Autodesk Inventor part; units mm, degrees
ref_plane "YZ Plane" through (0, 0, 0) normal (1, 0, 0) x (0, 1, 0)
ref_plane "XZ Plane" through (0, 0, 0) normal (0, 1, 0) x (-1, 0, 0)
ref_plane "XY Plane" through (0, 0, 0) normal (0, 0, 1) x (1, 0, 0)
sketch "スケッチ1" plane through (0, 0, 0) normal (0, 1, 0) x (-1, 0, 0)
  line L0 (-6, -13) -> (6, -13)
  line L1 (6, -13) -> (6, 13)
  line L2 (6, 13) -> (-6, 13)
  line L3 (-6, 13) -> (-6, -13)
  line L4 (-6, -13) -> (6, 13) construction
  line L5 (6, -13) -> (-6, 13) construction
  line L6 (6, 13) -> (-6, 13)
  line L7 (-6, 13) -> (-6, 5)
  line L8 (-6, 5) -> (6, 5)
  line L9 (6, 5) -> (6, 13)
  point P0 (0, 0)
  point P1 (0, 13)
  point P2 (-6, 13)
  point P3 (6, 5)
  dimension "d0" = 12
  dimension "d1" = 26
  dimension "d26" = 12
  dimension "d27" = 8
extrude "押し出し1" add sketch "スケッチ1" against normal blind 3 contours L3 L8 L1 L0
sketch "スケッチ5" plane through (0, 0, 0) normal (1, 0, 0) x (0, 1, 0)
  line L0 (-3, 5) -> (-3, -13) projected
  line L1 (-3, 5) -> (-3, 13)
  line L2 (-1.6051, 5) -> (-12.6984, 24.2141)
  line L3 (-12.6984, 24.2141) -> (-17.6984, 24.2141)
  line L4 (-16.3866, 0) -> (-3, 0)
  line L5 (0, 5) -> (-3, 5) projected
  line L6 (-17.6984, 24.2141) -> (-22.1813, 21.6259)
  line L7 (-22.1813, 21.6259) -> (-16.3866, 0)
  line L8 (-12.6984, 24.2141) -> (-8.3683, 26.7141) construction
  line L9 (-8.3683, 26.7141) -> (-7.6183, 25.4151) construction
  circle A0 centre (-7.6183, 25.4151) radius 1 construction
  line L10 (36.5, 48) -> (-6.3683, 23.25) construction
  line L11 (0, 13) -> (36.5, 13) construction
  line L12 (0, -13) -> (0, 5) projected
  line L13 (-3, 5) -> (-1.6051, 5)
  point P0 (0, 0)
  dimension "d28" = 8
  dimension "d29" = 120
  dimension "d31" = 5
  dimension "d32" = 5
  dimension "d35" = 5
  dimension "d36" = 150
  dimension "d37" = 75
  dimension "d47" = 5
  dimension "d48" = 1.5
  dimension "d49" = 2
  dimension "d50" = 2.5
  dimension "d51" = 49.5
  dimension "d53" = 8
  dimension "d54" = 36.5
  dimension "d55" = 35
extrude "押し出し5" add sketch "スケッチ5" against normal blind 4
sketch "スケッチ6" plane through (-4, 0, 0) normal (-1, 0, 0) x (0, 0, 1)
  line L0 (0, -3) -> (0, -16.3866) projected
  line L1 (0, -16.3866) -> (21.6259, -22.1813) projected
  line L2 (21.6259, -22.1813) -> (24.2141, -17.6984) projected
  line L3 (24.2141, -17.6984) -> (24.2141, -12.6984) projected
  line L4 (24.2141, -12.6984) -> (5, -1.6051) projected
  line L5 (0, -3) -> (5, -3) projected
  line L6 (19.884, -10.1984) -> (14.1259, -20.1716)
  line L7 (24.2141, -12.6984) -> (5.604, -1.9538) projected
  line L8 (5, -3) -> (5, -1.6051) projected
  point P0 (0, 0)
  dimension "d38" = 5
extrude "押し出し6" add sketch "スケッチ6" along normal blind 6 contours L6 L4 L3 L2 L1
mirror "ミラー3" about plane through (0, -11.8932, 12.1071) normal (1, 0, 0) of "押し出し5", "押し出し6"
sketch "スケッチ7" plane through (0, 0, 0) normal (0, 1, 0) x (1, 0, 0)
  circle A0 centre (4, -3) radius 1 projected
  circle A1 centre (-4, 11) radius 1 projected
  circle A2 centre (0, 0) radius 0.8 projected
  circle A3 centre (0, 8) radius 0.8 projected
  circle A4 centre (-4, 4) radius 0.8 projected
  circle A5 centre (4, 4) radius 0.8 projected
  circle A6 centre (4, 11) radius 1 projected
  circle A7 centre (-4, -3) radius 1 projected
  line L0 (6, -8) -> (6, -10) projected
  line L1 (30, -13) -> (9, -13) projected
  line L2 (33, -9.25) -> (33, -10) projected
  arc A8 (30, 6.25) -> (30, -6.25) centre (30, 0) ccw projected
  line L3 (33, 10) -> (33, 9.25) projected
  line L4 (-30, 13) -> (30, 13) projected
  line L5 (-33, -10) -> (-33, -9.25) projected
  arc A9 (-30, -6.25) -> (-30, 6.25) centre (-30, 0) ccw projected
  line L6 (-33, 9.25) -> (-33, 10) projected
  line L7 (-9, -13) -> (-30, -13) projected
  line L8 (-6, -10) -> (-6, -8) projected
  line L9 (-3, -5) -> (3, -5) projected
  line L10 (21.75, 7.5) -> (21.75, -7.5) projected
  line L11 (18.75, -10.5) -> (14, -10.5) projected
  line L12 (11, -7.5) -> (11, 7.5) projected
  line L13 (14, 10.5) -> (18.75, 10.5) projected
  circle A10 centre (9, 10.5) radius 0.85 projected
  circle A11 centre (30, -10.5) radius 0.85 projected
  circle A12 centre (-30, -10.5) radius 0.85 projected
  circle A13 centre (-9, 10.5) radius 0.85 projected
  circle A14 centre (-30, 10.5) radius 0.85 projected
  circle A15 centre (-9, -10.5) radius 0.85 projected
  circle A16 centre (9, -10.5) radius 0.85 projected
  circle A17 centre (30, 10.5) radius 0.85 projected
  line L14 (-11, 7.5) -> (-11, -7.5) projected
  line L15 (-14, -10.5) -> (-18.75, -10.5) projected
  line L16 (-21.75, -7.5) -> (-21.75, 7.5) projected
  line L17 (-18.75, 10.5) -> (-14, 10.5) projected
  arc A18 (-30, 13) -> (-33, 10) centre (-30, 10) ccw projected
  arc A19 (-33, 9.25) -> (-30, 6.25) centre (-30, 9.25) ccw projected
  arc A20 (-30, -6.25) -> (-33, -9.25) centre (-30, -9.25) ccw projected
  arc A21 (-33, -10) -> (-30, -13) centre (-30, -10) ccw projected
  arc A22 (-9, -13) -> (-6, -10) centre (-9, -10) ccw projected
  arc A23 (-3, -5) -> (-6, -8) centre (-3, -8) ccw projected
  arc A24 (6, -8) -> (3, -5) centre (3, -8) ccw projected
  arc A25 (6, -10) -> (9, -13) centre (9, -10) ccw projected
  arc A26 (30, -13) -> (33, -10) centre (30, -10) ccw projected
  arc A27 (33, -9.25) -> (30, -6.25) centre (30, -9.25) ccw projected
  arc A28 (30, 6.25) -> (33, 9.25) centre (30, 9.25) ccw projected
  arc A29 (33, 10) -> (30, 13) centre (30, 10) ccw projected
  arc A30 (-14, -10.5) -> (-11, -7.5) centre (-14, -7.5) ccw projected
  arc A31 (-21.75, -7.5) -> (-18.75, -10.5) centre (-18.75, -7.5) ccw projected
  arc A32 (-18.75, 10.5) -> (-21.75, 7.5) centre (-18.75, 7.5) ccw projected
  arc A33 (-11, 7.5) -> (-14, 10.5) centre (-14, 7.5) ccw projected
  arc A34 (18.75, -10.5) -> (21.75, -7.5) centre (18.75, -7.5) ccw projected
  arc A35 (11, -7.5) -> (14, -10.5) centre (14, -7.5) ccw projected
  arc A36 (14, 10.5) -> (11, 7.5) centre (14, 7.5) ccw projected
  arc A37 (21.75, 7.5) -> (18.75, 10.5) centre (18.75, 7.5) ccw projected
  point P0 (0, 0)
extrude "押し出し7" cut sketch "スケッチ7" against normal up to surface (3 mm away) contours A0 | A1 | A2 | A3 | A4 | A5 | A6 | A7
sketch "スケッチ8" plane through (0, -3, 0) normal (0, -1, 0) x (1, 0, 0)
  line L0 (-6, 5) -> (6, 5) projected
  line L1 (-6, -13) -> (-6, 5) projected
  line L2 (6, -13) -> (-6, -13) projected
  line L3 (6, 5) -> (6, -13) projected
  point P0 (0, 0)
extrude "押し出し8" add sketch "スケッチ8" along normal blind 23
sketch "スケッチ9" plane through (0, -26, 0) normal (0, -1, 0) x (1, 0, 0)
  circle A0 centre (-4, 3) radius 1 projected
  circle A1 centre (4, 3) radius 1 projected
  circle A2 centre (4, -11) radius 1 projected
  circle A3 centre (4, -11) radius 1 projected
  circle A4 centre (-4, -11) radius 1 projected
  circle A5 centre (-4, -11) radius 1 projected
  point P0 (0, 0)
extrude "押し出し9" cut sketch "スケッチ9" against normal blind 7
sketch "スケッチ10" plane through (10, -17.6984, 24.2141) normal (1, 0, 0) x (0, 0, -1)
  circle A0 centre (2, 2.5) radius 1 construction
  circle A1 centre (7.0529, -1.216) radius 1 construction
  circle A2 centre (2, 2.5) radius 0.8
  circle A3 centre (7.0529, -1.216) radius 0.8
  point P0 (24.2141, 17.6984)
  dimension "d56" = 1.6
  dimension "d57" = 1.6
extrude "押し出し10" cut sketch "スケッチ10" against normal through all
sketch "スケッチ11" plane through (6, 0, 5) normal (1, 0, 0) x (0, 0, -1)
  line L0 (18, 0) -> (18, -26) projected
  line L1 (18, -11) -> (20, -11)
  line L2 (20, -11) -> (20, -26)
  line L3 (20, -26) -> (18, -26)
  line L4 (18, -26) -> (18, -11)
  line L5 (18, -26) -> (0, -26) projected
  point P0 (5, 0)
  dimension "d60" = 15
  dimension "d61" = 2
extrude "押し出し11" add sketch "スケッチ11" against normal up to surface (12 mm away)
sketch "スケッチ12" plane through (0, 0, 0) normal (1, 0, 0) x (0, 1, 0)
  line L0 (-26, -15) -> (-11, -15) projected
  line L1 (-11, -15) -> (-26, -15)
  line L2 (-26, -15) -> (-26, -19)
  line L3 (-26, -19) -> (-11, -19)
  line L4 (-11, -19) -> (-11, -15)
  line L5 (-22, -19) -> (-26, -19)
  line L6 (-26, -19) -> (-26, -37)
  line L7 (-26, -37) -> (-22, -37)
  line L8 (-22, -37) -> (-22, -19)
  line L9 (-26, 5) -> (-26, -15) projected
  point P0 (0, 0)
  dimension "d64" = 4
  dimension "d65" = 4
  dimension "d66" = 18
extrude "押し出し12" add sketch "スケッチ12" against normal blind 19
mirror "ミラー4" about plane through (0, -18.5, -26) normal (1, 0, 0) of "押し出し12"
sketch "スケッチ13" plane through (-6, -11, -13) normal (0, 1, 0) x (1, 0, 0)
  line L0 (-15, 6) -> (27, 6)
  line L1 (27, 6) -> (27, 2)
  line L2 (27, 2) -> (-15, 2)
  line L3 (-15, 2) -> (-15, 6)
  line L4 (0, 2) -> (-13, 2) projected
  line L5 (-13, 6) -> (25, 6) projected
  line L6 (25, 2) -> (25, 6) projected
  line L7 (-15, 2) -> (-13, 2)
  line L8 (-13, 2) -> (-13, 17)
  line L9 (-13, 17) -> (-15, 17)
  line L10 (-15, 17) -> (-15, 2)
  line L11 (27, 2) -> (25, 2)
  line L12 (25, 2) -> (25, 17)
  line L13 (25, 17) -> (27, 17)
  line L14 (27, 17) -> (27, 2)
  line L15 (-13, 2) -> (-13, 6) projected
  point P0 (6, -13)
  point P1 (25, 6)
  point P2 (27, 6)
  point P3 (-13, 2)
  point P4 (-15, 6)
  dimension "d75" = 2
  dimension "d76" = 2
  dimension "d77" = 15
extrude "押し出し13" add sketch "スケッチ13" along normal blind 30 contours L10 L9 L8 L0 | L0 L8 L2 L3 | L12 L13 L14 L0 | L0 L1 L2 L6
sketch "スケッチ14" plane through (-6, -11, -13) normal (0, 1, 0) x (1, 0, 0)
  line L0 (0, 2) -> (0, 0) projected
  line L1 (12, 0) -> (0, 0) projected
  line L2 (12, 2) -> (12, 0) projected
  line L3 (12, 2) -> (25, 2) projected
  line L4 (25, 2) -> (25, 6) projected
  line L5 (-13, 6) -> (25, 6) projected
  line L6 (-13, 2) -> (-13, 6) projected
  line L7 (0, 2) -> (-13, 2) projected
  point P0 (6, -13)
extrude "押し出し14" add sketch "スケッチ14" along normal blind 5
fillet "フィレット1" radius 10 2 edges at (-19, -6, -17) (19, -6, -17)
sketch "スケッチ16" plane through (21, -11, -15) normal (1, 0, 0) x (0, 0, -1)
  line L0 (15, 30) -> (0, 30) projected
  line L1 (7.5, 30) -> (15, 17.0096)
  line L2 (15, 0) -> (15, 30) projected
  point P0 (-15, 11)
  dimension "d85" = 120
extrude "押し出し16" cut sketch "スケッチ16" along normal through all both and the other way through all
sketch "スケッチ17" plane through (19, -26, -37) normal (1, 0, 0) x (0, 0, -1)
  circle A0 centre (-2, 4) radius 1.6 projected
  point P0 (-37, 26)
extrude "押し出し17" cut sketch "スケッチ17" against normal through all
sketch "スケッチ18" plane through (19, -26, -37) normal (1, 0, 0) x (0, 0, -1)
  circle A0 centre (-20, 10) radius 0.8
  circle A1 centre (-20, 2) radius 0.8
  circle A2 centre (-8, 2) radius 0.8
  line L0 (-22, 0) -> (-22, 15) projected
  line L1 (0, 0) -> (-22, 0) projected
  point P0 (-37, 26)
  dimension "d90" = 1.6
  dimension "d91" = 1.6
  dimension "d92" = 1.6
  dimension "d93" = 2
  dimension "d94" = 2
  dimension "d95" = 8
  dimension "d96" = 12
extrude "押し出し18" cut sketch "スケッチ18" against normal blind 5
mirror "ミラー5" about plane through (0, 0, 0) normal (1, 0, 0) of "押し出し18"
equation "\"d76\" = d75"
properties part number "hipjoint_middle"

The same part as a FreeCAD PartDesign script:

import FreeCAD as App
import Part
import Sketcher
from FreeCAD import Vector
Q = App.Units.Quantity


def edges_at(feature, points):
    """Names of the edges that pass closest to the given points."""
    edges = feature.Shape.Edges
    near = lambda p: min(range(len(edges)), key=lambda i: edges[i].distToShape(Part.Vertex(*p))[0])
    return sorted({f"Edge{near(p) + 1}" for p in points})

doc = App.newDocument("Part")
params = doc.addObject("Spreadsheet::Sheet", "Params")
for row, (alias, value) in enumerate([
    ("sketch1_width", "12 mm"),
    ("sketch1_height", "18 mm"),
    ("pad1_length", "3 mm"),
    ("sketch2_width", "5 mm"),
    ("pad2_length", "4 mm"),
    ("sketch3_width", "5 mm"),
    ("sketch3_length", "5 mm"),
    ("pad3_length", "6 mm"),
    ("sketch4_diameter", "2 mm"),
    ("sketch4_diameter2", "1.6 mm"),
    ("pocket1_length", "3 mm"),
    ("sketch5_width", "12 mm"),
    ("sketch5_height", "18 mm"),
    ("pad4_length", "23 mm"),
    ("sketch6_diameter", "2 mm"),
    ("pocket2_length", "7 mm"),
    ("sketch7_diameter", "1.6 mm"),
    ("sketch8_width", "15 mm"),
    ("sketch8_height", "2 mm"),
    ("pad5_length", "12 mm"),
    ("sketch9_width", "4 mm"),
    ("sketch9_height", "18 mm"),
    ("sketch9_width2", "15 mm"),
    ("pad6_length", "19 mm"),
    ("sketch10_width", "2 mm"),
    ("sketch10_height", "15 mm"),
    ("pad7_length", "30 mm"),
    ("sketch11_width", "13 mm"),
    ("sketch11_width2", "12 mm"),
    ("sketch11_height", "2 mm"),
    ("sketch11_height2", "4 mm"),
    ("pad8_length", "5 mm"),
    ("fillet_radius", "10 mm"),
    ("sketch12_length", "15 mm"),
    ("sketch13_diameter", "3.2 mm"),
    ("sketch14_diameter", "1.6 mm"),
    ("pocket6_length", "5 mm"),
], start=1):
    params.set(f"A{row}", alias)
    params.set(f"B{row}", "=" + value)
    params.setAlias(f"B{row}", alias)

body = doc.addObject("PartDesign::Body", "Body")
body.AllowCompound = True

sketch1 = doc.addObject("Sketcher::SketchObject", "Sketch")
body.addObject(sketch1)
sketch1.AttachmentSupport = (doc.XZ_Plane, [""])
sketch1.MapMode = "FlatFace"
sketch1.addGeometry(Part.LineSegment(Vector(6, 5, 0), Vector(6, -13, 0)), False)
sketch1.addGeometry(Part.LineSegment(Vector(6, -13, 0), Vector(-6, -13, 0)), False)
sketch1.addGeometry(Part.LineSegment(Vector(-6, -13, 0), Vector(-6, 5, 0)), False)
sketch1.addGeometry(Part.LineSegment(Vector(-6, 5, 0), Vector(6, 5, 0)), False)
sketch1.addConstraint(Sketcher.Constraint("Coincident", 0, 2, 1, 1))
sketch1.addConstraint(Sketcher.Constraint("Coincident", 1, 2, 2, 1))
sketch1.addConstraint(Sketcher.Constraint("Coincident", 2, 2, 3, 1))
sketch1.addConstraint(Sketcher.Constraint("Coincident", 3, 2, 0, 1))
sketch1.addConstraint(Sketcher.Constraint("Vertical", 0))
sketch1.addConstraint(Sketcher.Constraint("Horizontal", 1))
sketch1.addConstraint(Sketcher.Constraint("Vertical", 2))
sketch1.addConstraint(Sketcher.Constraint("Horizontal", 3))
sketch1.addConstraint(Sketcher.Constraint("DistanceX", 1, 2, 1, 1, Q("12 mm")))
sketch1.addConstraint(Sketcher.Constraint("DistanceY", 0, 2, 0, 1, Q("18 mm")))
sketch1.addConstraint(Sketcher.Constraint("DistanceX", -1, 1, 0, 2, Q("6 mm")))
sketch1.addConstraint(Sketcher.Constraint("DistanceY", 0, 2, -1, 1, Q("13 mm")))
sketch1.setExpression("Constraints[8]", "Params.sketch1_width")
sketch1.setExpression("Constraints[9]", "Params.sketch1_height")
pad1 = doc.addObject("PartDesign::Pad", "Pad")
body.addObject(pad1)
pad1.Profile = sketch1
pad1.setExpression("Length", "Params.pad1_length")

sketch2 = doc.addObject("Sketcher::SketchObject", "Sketch001")
body.addObject(sketch2)
sketch2.AttachmentSupport = (doc.YZ_Plane, [""])
sketch2.MapMode = "FlatFace"
sketch2.addGeometry(Part.LineSegment(Vector(-3, 0, 0), Vector(-3, 5, 0)), False)
sketch2.addGeometry(Part.LineSegment(Vector(-3, 5, 0), Vector(-1.6051, 5, 0)), False)
sketch2.addGeometry(Part.LineSegment(Vector(-1.6051, 5, 0), Vector(-12.6984, 24.2141, 0)), False)
sketch2.addGeometry(Part.LineSegment(Vector(-12.6984, 24.2141, 0), Vector(-17.6984, 24.2141, 0)), False)
sketch2.addGeometry(Part.LineSegment(Vector(-17.6984, 24.2141, 0), Vector(-22.1813, 21.6259, 0)), False)
sketch2.addGeometry(Part.LineSegment(Vector(-22.1813, 21.6259, 0), Vector(-16.3866, 0, 0)), False)
sketch2.addGeometry(Part.LineSegment(Vector(-16.3866, 0, 0), Vector(-3, 0, 0)), False)
sketch2.addConstraint(Sketcher.Constraint("Coincident", 0, 2, 1, 1))
sketch2.addConstraint(Sketcher.Constraint("Coincident", 1, 2, 2, 1))
sketch2.addConstraint(Sketcher.Constraint("Coincident", 2, 2, 3, 1))
sketch2.addConstraint(Sketcher.Constraint("Coincident", 3, 2, 4, 1))
sketch2.addConstraint(Sketcher.Constraint("Coincident", 4, 2, 5, 1))
sketch2.addConstraint(Sketcher.Constraint("Coincident", 5, 2, 6, 1))
sketch2.addConstraint(Sketcher.Constraint("Coincident", 6, 2, 0, 1))
sketch2.addConstraint(Sketcher.Constraint("Vertical", 0))
sketch2.addConstraint(Sketcher.Constraint("Horizontal", 1))
sketch2.addConstraint(Sketcher.Constraint("Horizontal", 3))
sketch2.addConstraint(Sketcher.Constraint("Horizontal", 6))
sketch2.addConstraint(Sketcher.Constraint("PointOnObject", 5, 2, -1))
sketch2.addConstraint(Sketcher.Constraint("Perpendicular", 2, 4))
sketch2.addConstraint(Sketcher.Constraint("Equal", 3, 0))
sketch2.addConstraint(Sketcher.Constraint("DistanceX", 3, 2, 3, 1, Q("5 mm")))
sketch2.addConstraint(Sketcher.Constraint("Angle", 2, Q("120 deg")))
sketch2.addConstraint(Sketcher.Constraint("Angle", 5, Q("-74.9999 deg")))
sketch2.addConstraint(Sketcher.Constraint("DistanceX", 0, 2, -1, 1, Q("3 mm")))
sketch2.addConstraint(Sketcher.Constraint("DistanceX", 1, 1, 1, 2, Q("1.395 mm")))
sketch2.addConstraint(Sketcher.Constraint("DistanceX", 6, 1, 6, 2, Q("13.3866 mm")))
sketch2.addConstraint(Sketcher.Constraint("DistanceY", -1, 1, 2, 2, Q("24.214 mm")))
sketch2.setExpression("Constraints[14]", "Params.sketch2_width")
pad2 = doc.addObject("PartDesign::Pad", "Pad001")
body.addObject(pad2)
pad2.Profile = sketch2
pad2.setExpression("Length", "Params.pad2_length")
pad2.Reversed = True

sketch3 = doc.addObject("Sketcher::SketchObject", "Sketch002")
body.addObject(sketch3)
sketch3.AttachmentSupport = (doc.YZ_Plane, [""])
sketch3.MapMode = "FlatFace"
sketch3.AttachmentOffset = App.Placement(Vector(0, 0, -4), App.Rotation())
sketch3.addGeometry(Part.LineSegment(Vector(-10.1984, 19.884, 0), Vector(-20.1716, 14.1259, 0)), False)
sketch3.addGeometry(Part.LineSegment(Vector(-20.171657, 14.125885, 0), Vector(-22.1813, 21.6259, 0)), False)
sketch3.addGeometry(Part.LineSegment(Vector(-22.1813, 21.6259, 0), Vector(-17.6984, 24.2141, 0)), False)
sketch3.addGeometry(Part.LineSegment(Vector(-17.6984, 24.2141, 0), Vector(-12.6984, 24.2141, 0)), False)
sketch3.addGeometry(Part.LineSegment(Vector(-12.6984, 24.2141, 0), Vector(-10.198406, 19.883997, 0)), False)
sketch3.addConstraint(Sketcher.Constraint("Coincident", 0, 2, 1, 1))
sketch3.addConstraint(Sketcher.Constraint("Coincident", 1, 2, 2, 1))
sketch3.addConstraint(Sketcher.Constraint("Coincident", 2, 2, 3, 1))
sketch3.addConstraint(Sketcher.Constraint("Coincident", 3, 2, 4, 1))
sketch3.addConstraint(Sketcher.Constraint("Coincident", 4, 2, 0, 1))
sketch3.addConstraint(Sketcher.Constraint("Horizontal", 3))
sketch3.addConstraint(Sketcher.Constraint("Parallel", 0, 2))
sketch3.addConstraint(Sketcher.Constraint("Perpendicular", 2, 4))
sketch3.addConstraint(Sketcher.Constraint("DistanceX", 3, 1, 3, 2, Q("5 mm")))
sketch3.addConstraint(Sketcher.Constraint("Distance", 4, Q("5 mm")))
sketch3.addConstraint(Sketcher.Constraint("Angle", 0, Q("-149.9997 deg")))
sketch3.addConstraint(Sketcher.Constraint("Angle", 1, Q("105.0001 deg")))
sketch3.addConstraint(Sketcher.Constraint("Distance", 0, Q("11.516 mm")))
sketch3.addConstraint(Sketcher.Constraint("DistanceY", -1, 1, 0, 2, Q("14.126 mm")))
sketch3.addConstraint(Sketcher.Constraint("DistanceX", 0, 2, -1, 1, Q("20.1716 mm")))
sketch3.setExpression("Constraints[8]", "Params.sketch3_width")
sketch3.setExpression("Constraints[9]", "Params.sketch3_length")
pad3 = doc.addObject("PartDesign::Pad", "Pad002")
body.addObject(pad3)
pad3.Profile = sketch3
pad3.setExpression("Length", "Params.pad3_length")
pad3.Reversed = True
doc.recompute()

mirrored = doc.addObject("PartDesign::Mirrored", "Mirrored")
body.addObject(mirrored)
mirrored.Originals = [pad2, pad3]
mirrored.MirrorPlane = (doc.YZ_Plane, [""])
body.Tip = mirrored

sketch4 = doc.addObject("Sketcher::SketchObject", "Sketch003")
body.addObject(sketch4)
sketch4.AttachmentSupport = (doc.XZ_Plane, [""])
sketch4.MapMode = "FlatFace"
sketch4.addGeometry(Part.Circle(Vector(4, 3, 0), Vector(0, 0, 1), 1), False)
sketch4.addGeometry(Part.Circle(Vector(-4, -11, 0), Vector(0, 0, 1), 1), False)
sketch4.addGeometry(Part.Circle(Vector(0, 0, 0), Vector(0, 0, 1), 0.8), False)
sketch4.addGeometry(Part.Circle(Vector(0, -8, 0), Vector(0, 0, 1), 0.8), False)
sketch4.addGeometry(Part.Circle(Vector(-4, -4, 0), Vector(0, 0, 1), 0.8), False)
sketch4.addGeometry(Part.Circle(Vector(4, -4, 0), Vector(0, 0, 1), 0.8), False)
sketch4.addGeometry(Part.Circle(Vector(4, -11, 0), Vector(0, 0, 1), 1), False)
sketch4.addGeometry(Part.Circle(Vector(-4, 3, 0), Vector(0, 0, 1), 1), False)
sketch4.addConstraint(Sketcher.Constraint("Coincident", 2, 3, -1, 1))
sketch4.addConstraint(Sketcher.Constraint("Equal", 0, 1))
sketch4.addConstraint(Sketcher.Constraint("Equal", 2, 3))
sketch4.addConstraint(Sketcher.Constraint("Equal", 3, 4))
sketch4.addConstraint(Sketcher.Constraint("Equal", 4, 5))
sketch4.addConstraint(Sketcher.Constraint("Equal", 1, 6))
sketch4.addConstraint(Sketcher.Constraint("Equal", 6, 7))
sketch4.addConstraint(Sketcher.Constraint("Symmetric", 4, 3, 5, 3, -2))
sketch4.addConstraint(Sketcher.Constraint("Symmetric", 1, 3, 6, 3, -2))
sketch4.addConstraint(Sketcher.Constraint("Symmetric", 0, 3, 7, 3, -2))
sketch4.addConstraint(Sketcher.Constraint("PointOnObject", 3, 3, -2))
sketch4.addConstraint(Sketcher.Constraint("Vertical", 1, 3, 4, 3))
sketch4.addConstraint(Sketcher.Constraint("Vertical", 0, 3, 5, 3))
sketch4.addConstraint(Sketcher.Constraint("Diameter", 0, Q("2 mm")))
sketch4.addConstraint(Sketcher.Constraint("Diameter", 2, Q("1.6 mm")))
sketch4.addConstraint(Sketcher.Constraint("DistanceX", -1, 1, 0, 3, Q("4 mm")))
sketch4.addConstraint(Sketcher.Constraint("DistanceY", -1, 1, 0, 3, Q("3 mm")))
sketch4.addConstraint(Sketcher.Constraint("DistanceY", 1, 3, -1, 1, Q("11 mm")))
sketch4.addConstraint(Sketcher.Constraint("DistanceY", 3, 3, -1, 1, Q("8 mm")))
sketch4.addConstraint(Sketcher.Constraint("DistanceY", 4, 3, -1, 1, Q("4 mm")))
sketch4.setExpression("Constraints[13]", "Params.sketch4_diameter")
sketch4.setExpression("Constraints[14]", "Params.sketch4_diameter2")
pocket1 = doc.addObject("PartDesign::Pocket", "Pocket")
body.addObject(pocket1)
pocket1.Profile = sketch4
pocket1.setExpression("Length", "Params.pocket1_length")
pocket1.Reversed = True

sketch5 = doc.addObject("Sketcher::SketchObject", "Sketch004")
body.addObject(sketch5)
sketch5.AttachmentSupport = (doc.XZ_Plane, [""])
sketch5.MapMode = "FlatFace"
sketch5.AttachmentOffset = App.Placement(Vector(0, 0, 3), App.Rotation())
sketch5.addGeometry(Part.LineSegment(Vector(6, 5, 0), Vector(-6, 5, 0)), False)
sketch5.addGeometry(Part.LineSegment(Vector(-6, 5, 0), Vector(-6, -13, 0)), False)
sketch5.addGeometry(Part.LineSegment(Vector(-6, -13, 0), Vector(6, -13, 0)), False)
sketch5.addGeometry(Part.LineSegment(Vector(6, -13, 0), Vector(6, 5, 0)), False)
sketch5.addConstraint(Sketcher.Constraint("Coincident", 0, 2, 1, 1))
sketch5.addConstraint(Sketcher.Constraint("Coincident", 1, 2, 2, 1))
sketch5.addConstraint(Sketcher.Constraint("Coincident", 2, 2, 3, 1))
sketch5.addConstraint(Sketcher.Constraint("Coincident", 3, 2, 0, 1))
sketch5.addConstraint(Sketcher.Constraint("Horizontal", 0))
sketch5.addConstraint(Sketcher.Constraint("Vertical", 1))
sketch5.addConstraint(Sketcher.Constraint("Horizontal", 2))
sketch5.addConstraint(Sketcher.Constraint("Vertical", 3))
sketch5.addConstraint(Sketcher.Constraint("DistanceX", 0, 2, 0, 1, Q("12 mm")))
sketch5.addConstraint(Sketcher.Constraint("DistanceY", 1, 2, 1, 1, Q("18 mm")))
sketch5.addConstraint(Sketcher.Constraint("DistanceX", 0, 2, -1, 1, Q("6 mm")))
sketch5.addConstraint(Sketcher.Constraint("DistanceY", -1, 1, 0, 2, Q("5 mm")))
sketch5.setExpression("Constraints[8]", "Params.sketch5_width")
sketch5.setExpression("Constraints[9]", "Params.sketch5_height")
pad4 = doc.addObject("PartDesign::Pad", "Pad003")
body.addObject(pad4)
pad4.Profile = sketch5
pad4.setExpression("Length", "Params.pad4_length")

sketch6 = doc.addObject("Sketcher::SketchObject", "Sketch005")
body.addObject(sketch6)
sketch6.AttachmentSupport = (doc.XZ_Plane, [""])
sketch6.MapMode = "FlatFace"
sketch6.AttachmentOffset = App.Placement(Vector(0, 0, 26), App.Rotation())
sketch6.addGeometry(Part.Circle(Vector(-4, 3, 0), Vector(0, 0, 1), 1), False)
sketch6.addGeometry(Part.Circle(Vector(4, 3, 0), Vector(0, 0, 1), 1), False)
sketch6.addGeometry(Part.Circle(Vector(4, -11, 0), Vector(0, 0, 1), 1), False)
sketch6.addGeometry(Part.Circle(Vector(-4, -11, 0), Vector(0, 0, 1), 1), False)
sketch6.addConstraint(Sketcher.Constraint("Equal", 0, 1))
sketch6.addConstraint(Sketcher.Constraint("Equal", 1, 2))
sketch6.addConstraint(Sketcher.Constraint("Equal", 2, 3))
sketch6.addConstraint(Sketcher.Constraint("Symmetric", 0, 3, 1, 3, -2))
sketch6.addConstraint(Sketcher.Constraint("Symmetric", 2, 3, 3, 3, -2))
sketch6.addConstraint(Sketcher.Constraint("Vertical", 1, 3, 2, 3))
sketch6.addConstraint(Sketcher.Constraint("Diameter", 0, Q("2 mm")))
sketch6.addConstraint(Sketcher.Constraint("DistanceX", 0, 3, -1, 1, Q("4 mm")))
sketch6.addConstraint(Sketcher.Constraint("DistanceY", -1, 1, 0, 3, Q("3 mm")))
sketch6.addConstraint(Sketcher.Constraint("DistanceY", 2, 3, -1, 1, Q("11 mm")))
sketch6.setExpression("Constraints[6]", "Params.sketch6_diameter")
pocket2 = doc.addObject("PartDesign::Pocket", "Pocket001")
body.addObject(pocket2)
pocket2.Profile = sketch6
pocket2.setExpression("Length", "Params.pocket2_length")

sketch7 = doc.addObject("Sketcher::SketchObject", "Sketch006")
body.addObject(sketch7)
sketch7.AttachmentSupport = (doc.YZ_Plane, [""])
sketch7.MapMode = "FlatFace"
sketch7.AttachmentOffset = App.Placement(Vector(0, 0, 10), App.Rotation())
sketch7.addGeometry(Part.Circle(Vector(-15.1984, 22.2141, 0), Vector(0, 0, 1), 0.8), False)
sketch7.addGeometry(Part.Circle(Vector(-18.9144, 17.1612, 0), Vector(0, 0, 1), 0.8), False)
sketch7.addConstraint(Sketcher.Constraint("Equal", 0, 1))
sketch7.addConstraint(Sketcher.Constraint("Diameter", 0, Q("1.6 mm")))
sketch7.addConstraint(Sketcher.Constraint("DistanceY", -1, 1, 0, 3, Q("22.214 mm")))
sketch7.addConstraint(Sketcher.Constraint("DistanceX", 1, 3, 0, 3, Q("3.716 mm")))
sketch7.addConstraint(Sketcher.Constraint("DistanceY", 1, 3, 0, 3, Q("5.053 mm")))
sketch7.addConstraint(Sketcher.Constraint("DistanceX", 0, 3, -1, 1, Q("15.1984 mm")))
sketch7.setExpression("Constraints[1]", "Params.sketch7_diameter")
pocket3 = doc.addObject("PartDesign::Pocket", "Pocket002")
body.addObject(pocket3)
pocket3.Profile = sketch7
pocket3.Type = "ThroughAll"

sketch8 = doc.addObject("Sketcher::SketchObject", "Sketch007")
body.addObject(sketch8)
sketch8.AttachmentSupport = (doc.YZ_Plane, [""])
sketch8.MapMode = "FlatFace"
sketch8.AttachmentOffset = App.Placement(Vector(0, 0, 6), App.Rotation())
sketch8.addGeometry(Part.LineSegment(Vector(-11, -15, 0), Vector(-11, -13, 0)), False)
sketch8.addGeometry(Part.LineSegment(Vector(-11, -13, 0), Vector(-26, -13, 0)), False)
sketch8.addGeometry(Part.LineSegment(Vector(-26, -13, 0), Vector(-26, -15, 0)), False)
sketch8.addGeometry(Part.LineSegment(Vector(-26, -15, 0), Vector(-11, -15, 0)), False)
sketch8.addConstraint(Sketcher.Constraint("Coincident", 0, 2, 1, 1))
sketch8.addConstraint(Sketcher.Constraint("Coincident", 1, 2, 2, 1))
sketch8.addConstraint(Sketcher.Constraint("Coincident", 2, 2, 3, 1))
sketch8.addConstraint(Sketcher.Constraint("Coincident", 3, 2, 0, 1))
sketch8.addConstraint(Sketcher.Constraint("Vertical", 0))
sketch8.addConstraint(Sketcher.Constraint("Horizontal", 1))
sketch8.addConstraint(Sketcher.Constraint("Vertical", 2))
sketch8.addConstraint(Sketcher.Constraint("Horizontal", 3))
sketch8.addConstraint(Sketcher.Constraint("DistanceX", 1, 2, 1, 1, Q("15 mm")))
sketch8.addConstraint(Sketcher.Constraint("DistanceY", 0, 1, 0, 2, Q("2 mm")))
sketch8.addConstraint(Sketcher.Constraint("DistanceY", 2, 2, -1, 1, Q("15 mm")))
sketch8.addConstraint(Sketcher.Constraint("DistanceX", 0, 2, -1, 1, Q("11 mm")))
sketch8.setExpression("Constraints[8]", "Params.sketch8_width")
sketch8.setExpression("Constraints[9]", "Params.sketch8_height")
pad5 = doc.addObject("PartDesign::Pad", "Pad004")
body.addObject(pad5)
pad5.Profile = sketch8
pad5.setExpression("Length", "Params.pad5_length")
pad5.Reversed = True

sketch9 = doc.addObject("Sketcher::SketchObject", "Sketch008")
body.addObject(sketch9)
sketch9.AttachmentSupport = (doc.YZ_Plane, [""])
sketch9.MapMode = "FlatFace"
sketch9.addGeometry(Part.LineSegment(Vector(-11, -15, 0), Vector(-26, -15, 0)), False)
sketch9.addGeometry(Part.LineSegment(Vector(-26, -15, 0), Vector(-26, -37, 0)), False)
sketch9.addGeometry(Part.LineSegment(Vector(-26, -37, 0), Vector(-22, -37, 0)), False)
sketch9.addGeometry(Part.LineSegment(Vector(-22, -37, 0), Vector(-22, -19, 0)), False)
sketch9.addGeometry(Part.LineSegment(Vector(-22, -19, 0), Vector(-11, -19, 0)), False)
sketch9.addGeometry(Part.LineSegment(Vector(-11, -19, 0), Vector(-11, -15, 0)), False)
sketch9.addConstraint(Sketcher.Constraint("Coincident", 0, 2, 1, 1))
sketch9.addConstraint(Sketcher.Constraint("Coincident", 1, 2, 2, 1))
sketch9.addConstraint(Sketcher.Constraint("Coincident", 2, 2, 3, 1))
sketch9.addConstraint(Sketcher.Constraint("Coincident", 3, 2, 4, 1))
sketch9.addConstraint(Sketcher.Constraint("Coincident", 4, 2, 5, 1))
sketch9.addConstraint(Sketcher.Constraint("Coincident", 5, 2, 0, 1))
sketch9.addConstraint(Sketcher.Constraint("Horizontal", 0))
sketch9.addConstraint(Sketcher.Constraint("Vertical", 1))
sketch9.addConstraint(Sketcher.Constraint("Horizontal", 2))
sketch9.addConstraint(Sketcher.Constraint("Vertical", 3))
sketch9.addConstraint(Sketcher.Constraint("Horizontal", 4))
sketch9.addConstraint(Sketcher.Constraint("Vertical", 5))
sketch9.addConstraint(Sketcher.Constraint("Equal", 2, 5))
sketch9.addConstraint(Sketcher.Constraint("DistanceX", 2, 1, 2, 2, Q("4 mm")))
sketch9.addConstraint(Sketcher.Constraint("DistanceY", 3, 1, 3, 2, Q("18 mm")))
sketch9.addConstraint(Sketcher.Constraint("DistanceX", 0, 2, 0, 1, Q("15 mm")))
sketch9.addConstraint(Sketcher.Constraint("DistanceX", 0, 2, -1, 1, Q("26 mm")))
sketch9.addConstraint(Sketcher.Constraint("DistanceY", 0, 2, -1, 1, Q("15 mm")))
sketch9.setExpression("Constraints[13]", "Params.sketch9_width")
sketch9.setExpression("Constraints[14]", "Params.sketch9_height")
sketch9.setExpression("Constraints[15]", "Params.sketch9_width2")
pad6 = doc.addObject("PartDesign::Pad", "Pad005")
body.addObject(pad6)
pad6.Profile = sketch9
pad6.setExpression("Length", "Params.pad6_length")
pad6.Reversed = True
doc.recompute()

mirrored2 = doc.addObject("PartDesign::Mirrored", "Mirrored001")
body.addObject(mirrored2)
mirrored2.Originals = [pad6]
mirrored2.MirrorPlane = (doc.YZ_Plane, [""])
body.Tip = mirrored2

sketch10 = doc.addObject("Sketcher::SketchObject", "Sketch009")
body.addObject(sketch10)
sketch10.AttachmentSupport = (doc.XZ_Plane, [""])
sketch10.MapMode = "FlatFace"
sketch10.AttachmentOffset = App.Placement(Vector(0, 0, 11), App.Rotation())
sketch10.addGeometry(Part.LineSegment(Vector(-21, -30, 0), Vector(-21, -15, 0)), False)
sketch10.addGeometry(Part.LineSegment(Vector(-21, -15, 0), Vector(-19, -15, 0)), False)
sketch10.addGeometry(Part.LineSegment(Vector(-19, -15, 0), Vector(-19, -30, 0)), False)
sketch10.addGeometry(Part.LineSegment(Vector(-19, -30, 0), Vector(-21, -30, 0)), False)
sketch10.addGeometry(Part.LineSegment(Vector(19, -30, 0), Vector(19, -15, 0)), False)
sketch10.addGeometry(Part.LineSegment(Vector(19, -15, 0), Vector(21, -15, 0)), False)
sketch10.addGeometry(Part.LineSegment(Vector(21, -15, 0), Vector(21, -30, 0)), False)
sketch10.addGeometry(Part.LineSegment(Vector(21, -30, 0), Vector(19, -30, 0)), False)
sketch10.addConstraint(Sketcher.Constraint("Coincident", 0, 2, 1, 1))
sketch10.addConstraint(Sketcher.Constraint("Coincident", 1, 2, 2, 1))
sketch10.addConstraint(Sketcher.Constraint("Coincident", 2, 2, 3, 1))
sketch10.addConstraint(Sketcher.Constraint("Coincident", 3, 2, 0, 1))
sketch10.addConstraint(Sketcher.Constraint("Coincident", 4, 2, 5, 1))
sketch10.addConstraint(Sketcher.Constraint("Coincident", 5, 2, 6, 1))
sketch10.addConstraint(Sketcher.Constraint("Coincident", 6, 2, 7, 1))
sketch10.addConstraint(Sketcher.Constraint("Coincident", 7, 2, 4, 1))
sketch10.addConstraint(Sketcher.Constraint("Vertical", 0))
sketch10.addConstraint(Sketcher.Constraint("Horizontal", 1))
sketch10.addConstraint(Sketcher.Constraint("Vertical", 2))
sketch10.addConstraint(Sketcher.Constraint("Horizontal", 3))
sketch10.addConstraint(Sketcher.Constraint("Vertical", 4))
sketch10.addConstraint(Sketcher.Constraint("Horizontal", 5))
sketch10.addConstraint(Sketcher.Constraint("Vertical", 6))
sketch10.addConstraint(Sketcher.Constraint("Horizontal", 7))
sketch10.addConstraint(Sketcher.Constraint("Symmetric", 1, 2, 4, 2, -2))
sketch10.addConstraint(Sketcher.Constraint("Symmetric", 3, 2, 6, 2, -2))
sketch10.addConstraint(Sketcher.Constraint("DistanceX", 1, 1, 1, 2, Q("2 mm")))
sketch10.addConstraint(Sketcher.Constraint("DistanceY", 0, 1, 0, 2, Q("15 mm")))
sketch10.addConstraint(Sketcher.Constraint("DistanceY", 0, 2, -1, 1, Q("15 mm")))
sketch10.addConstraint(Sketcher.Constraint("DistanceX", 0, 2, -1, 1, Q("21 mm")))
sketch10.setExpression("Constraints[18]", "Params.sketch10_width")
sketch10.setExpression("Constraints[19]", "Params.sketch10_height")
pad7 = doc.addObject("PartDesign::Pad", "Pad006")
body.addObject(pad7)
pad7.Profile = sketch10
pad7.setExpression("Length", "Params.pad7_length")
pad7.Reversed = True

sketch11 = doc.addObject("Sketcher::SketchObject", "Sketch010")
body.addObject(sketch11)
sketch11.AttachmentSupport = (doc.XZ_Plane, [""])
sketch11.MapMode = "FlatFace"
sketch11.AttachmentOffset = App.Placement(Vector(0, 0, 11), App.Rotation())
sketch11.addGeometry(Part.LineSegment(Vector(-19, -15, 0), Vector(-6, -15, 0)), False)
sketch11.addGeometry(Part.LineSegment(Vector(-6, -15, 0), Vector(-6, -13, 0)), False)
sketch11.addGeometry(Part.LineSegment(Vector(-6, -13, 0), Vector(6, -13, 0)), False)
sketch11.addGeometry(Part.LineSegment(Vector(6, -13, 0), Vector(6, -15, 0)), False)
sketch11.addGeometry(Part.LineSegment(Vector(6, -15, 0), Vector(19, -15, 0)), False)
sketch11.addGeometry(Part.LineSegment(Vector(19, -15, 0), Vector(19, -19, 0)), False)
sketch11.addGeometry(Part.LineSegment(Vector(19, -19, 0), Vector(-19, -19, 0)), False)
sketch11.addGeometry(Part.LineSegment(Vector(-19, -19, 0), Vector(-19, -15, 0)), False)
sketch11.addConstraint(Sketcher.Constraint("Coincident", 0, 2, 1, 1))
sketch11.addConstraint(Sketcher.Constraint("Coincident", 1, 2, 2, 1))
sketch11.addConstraint(Sketcher.Constraint("Coincident", 2, 2, 3, 1))
sketch11.addConstraint(Sketcher.Constraint("Coincident", 3, 2, 4, 1))
sketch11.addConstraint(Sketcher.Constraint("Coincident", 4, 2, 5, 1))
sketch11.addConstraint(Sketcher.Constraint("Coincident", 5, 2, 6, 1))
sketch11.addConstraint(Sketcher.Constraint("Coincident", 6, 2, 7, 1))
sketch11.addConstraint(Sketcher.Constraint("Coincident", 7, 2, 0, 1))
sketch11.addConstraint(Sketcher.Constraint("Horizontal", 0))
sketch11.addConstraint(Sketcher.Constraint("Vertical", 1))
sketch11.addConstraint(Sketcher.Constraint("Horizontal", 2))
sketch11.addConstraint(Sketcher.Constraint("Vertical", 3))
sketch11.addConstraint(Sketcher.Constraint("Horizontal", 4))
sketch11.addConstraint(Sketcher.Constraint("Vertical", 5))
sketch11.addConstraint(Sketcher.Constraint("Horizontal", 6))
sketch11.addConstraint(Sketcher.Constraint("Vertical", 7))
sketch11.addConstraint(Sketcher.Constraint("Symmetric", 0, 2, 3, 2, -2))
sketch11.addConstraint(Sketcher.Constraint("Equal", 0, 4))
sketch11.addConstraint(Sketcher.Constraint("DistanceX", 0, 1, 0, 2, Q("13 mm")))
sketch11.addConstraint(Sketcher.Constraint("DistanceX", 2, 1, 2, 2, Q("12 mm")))
sketch11.addConstraint(Sketcher.Constraint("DistanceY", 1, 1, 1, 2, Q("2 mm")))
sketch11.addConstraint(Sketcher.Constraint("DistanceY", 5, 2, 5, 1, Q("4 mm")))
sketch11.addConstraint(Sketcher.Constraint("DistanceY", 0, 2, -1, 1, Q("15 mm")))
sketch11.setExpression("Constraints[18]", "Params.sketch11_width")
sketch11.setExpression("Constraints[19]", "Params.sketch11_width2")
sketch11.setExpression("Constraints[20]", "Params.sketch11_height")
sketch11.setExpression("Constraints[21]", "Params.sketch11_height2")
pad8 = doc.addObject("PartDesign::Pad", "Pad007")
body.addObject(pad8)
pad8.Profile = sketch11
pad8.setExpression("Length", "Params.pad8_length")
pad8.Reversed = True
doc.recompute()

fillet = doc.addObject("PartDesign::Fillet", "Fillet")
body.addObject(fillet)
fillet.Base = (pad8, edges_at(pad8, [(-19, -6, -17), (19, -6, -17)]))
fillet.setExpression("Radius", "Params.fillet_radius")

sketch12 = doc.addObject("Sketcher::SketchObject", "Sketch011")
body.addObject(sketch12)
sketch12.AttachmentSupport = (doc.YZ_Plane, [""])
sketch12.MapMode = "FlatFace"
sketch12.AttachmentOffset = App.Placement(Vector(0, 0, 21), App.Rotation())
sketch12.addGeometry(Part.LineSegment(Vector(6.0096, -30, 0), Vector(19, -30, 0)), False)
sketch12.addGeometry(Part.LineSegment(Vector(19, -30, 0), Vector(19, -22.5, 0)), False)
sketch12.addGeometry(Part.LineSegment(Vector(19, -22.5, 0), Vector(6.0096, -30, 0)), False)
sketch12.addConstraint(Sketcher.Constraint("Coincident", 0, 2, 1, 1))
sketch12.addConstraint(Sketcher.Constraint("Coincident", 1, 2, 2, 1))
sketch12.addConstraint(Sketcher.Constraint("Coincident", 2, 2, 0, 1))
sketch12.addConstraint(Sketcher.Constraint("Horizontal", 0))
sketch12.addConstraint(Sketcher.Constraint("Vertical", 1))
sketch12.addConstraint(Sketcher.Constraint("Angle", 2, Q("-150 deg")))
sketch12.addConstraint(Sketcher.Constraint("Distance", 2, Q("15 mm")))
sketch12.addConstraint(Sketcher.Constraint("DistanceX", -1, 1, 0, 2, Q("19 mm")))
sketch12.addConstraint(Sketcher.Constraint("DistanceY", 0, 2, -1, 1, Q("30 mm")))
sketch12.setExpression("Constraints[6]", "Params.sketch12_length")
pocket4 = doc.addObject("PartDesign::Pocket", "Pocket003")
body.addObject(pocket4)
pocket4.Profile = sketch12
pocket4.Type = "ThroughAll"
pocket4.Midplane = True

sketch13 = doc.addObject("Sketcher::SketchObject", "Sketch012")
body.addObject(sketch13)
sketch13.AttachmentSupport = (doc.YZ_Plane, [""])
sketch13.MapMode = "FlatFace"
sketch13.AttachmentOffset = App.Placement(Vector(0, 0, 19), App.Rotation())
sketch13.addGeometry(Part.Circle(Vector(-22, -35, 0), Vector(0, 0, 1), 1.6), False)
sketch13.addConstraint(Sketcher.Constraint("Diameter", 0, Q("3.2 mm")))
sketch13.addConstraint(Sketcher.Constraint("DistanceX", 0, 3, -1, 1, Q("22 mm")))
sketch13.addConstraint(Sketcher.Constraint("DistanceY", 0, 3, -1, 1, Q("35 mm")))
sketch13.setExpression("Constraints[0]", "Params.sketch13_diameter")
pocket5 = doc.addObject("PartDesign::Pocket", "Pocket004")
body.addObject(pocket5)
pocket5.Profile = sketch13
pocket5.Type = "ThroughAll"

sketch14 = doc.addObject("Sketcher::SketchObject", "Sketch013")
body.addObject(sketch14)
sketch14.AttachmentSupport = (doc.YZ_Plane, [""])
sketch14.MapMode = "FlatFace"
sketch14.AttachmentOffset = App.Placement(Vector(0, 0, 19), App.Rotation())
sketch14.addGeometry(Part.Circle(Vector(-16, -17, 0), Vector(0, 0, 1), 0.8), False)
sketch14.addGeometry(Part.Circle(Vector(-24, -17, 0), Vector(0, 0, 1), 0.8), False)
sketch14.addGeometry(Part.Circle(Vector(-24, -29, 0), Vector(0, 0, 1), 0.8), False)
sketch14.addConstraint(Sketcher.Constraint("Equal", 0, 1))
sketch14.addConstraint(Sketcher.Constraint("Equal", 1, 2))
sketch14.addConstraint(Sketcher.Constraint("Horizontal", 0, 3, 1, 3))
sketch14.addConstraint(Sketcher.Constraint("Vertical", 1, 3, 2, 3))
sketch14.addConstraint(Sketcher.Constraint("Diameter", 0, Q("1.6 mm")))
sketch14.addConstraint(Sketcher.Constraint("DistanceX", 1, 3, 0, 3, Q("8 mm")))
sketch14.addConstraint(Sketcher.Constraint("DistanceY", 2, 3, 1, 3, Q("12 mm")))
sketch14.addConstraint(Sketcher.Constraint("DistanceX", 0, 3, -1, 1, Q("16 mm")))
sketch14.addConstraint(Sketcher.Constraint("DistanceY", 0, 3, -1, 1, Q("17 mm")))
sketch14.setExpression("Constraints[4]", "Params.sketch14_diameter")
pocket6 = doc.addObject("PartDesign::Pocket", "Pocket005")
body.addObject(pocket6)
pocket6.Profile = sketch14
pocket6.setExpression("Length", "Params.pocket6_length")
doc.recompute()

mirrored3 = doc.addObject("PartDesign::Mirrored", "Mirrored002")
body.addObject(mirrored3)
mirrored3.Originals = [pocket6]
mirrored3.MirrorPlane = (doc.YZ_Plane, [""])
body.Tip = mirrored3

doc.recompute()
